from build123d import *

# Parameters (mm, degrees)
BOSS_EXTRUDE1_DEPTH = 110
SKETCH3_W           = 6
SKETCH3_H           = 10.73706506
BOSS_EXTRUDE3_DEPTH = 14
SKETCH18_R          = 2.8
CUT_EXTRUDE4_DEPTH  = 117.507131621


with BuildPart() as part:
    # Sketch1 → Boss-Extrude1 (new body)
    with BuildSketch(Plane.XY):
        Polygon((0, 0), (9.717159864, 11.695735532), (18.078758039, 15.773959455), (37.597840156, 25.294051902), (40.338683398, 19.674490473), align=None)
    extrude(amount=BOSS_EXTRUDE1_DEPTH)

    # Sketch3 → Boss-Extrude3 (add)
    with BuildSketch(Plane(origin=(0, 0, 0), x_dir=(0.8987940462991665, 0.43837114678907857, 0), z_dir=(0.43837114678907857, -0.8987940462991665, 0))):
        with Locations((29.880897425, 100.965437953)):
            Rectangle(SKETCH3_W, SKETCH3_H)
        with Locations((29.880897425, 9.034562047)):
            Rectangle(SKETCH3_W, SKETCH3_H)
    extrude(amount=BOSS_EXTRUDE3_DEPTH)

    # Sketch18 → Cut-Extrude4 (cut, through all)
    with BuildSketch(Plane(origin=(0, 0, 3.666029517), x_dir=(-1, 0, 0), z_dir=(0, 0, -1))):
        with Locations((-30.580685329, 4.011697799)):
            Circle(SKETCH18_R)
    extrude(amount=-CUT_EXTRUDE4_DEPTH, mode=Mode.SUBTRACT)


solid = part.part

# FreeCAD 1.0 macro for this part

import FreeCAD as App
import Part
import Sketcher

V = App.Vector
Q = App.Units.Quantity


def add_polygon(sketch, points):
    """Adds a closed chain of lines whose ends are joined by coincident constraints."""
    first, n = sketch.GeometryCount, len(points)
    for a, b in zip(points, points[1:] + points[:1]):
        sketch.addGeometry(Part.LineSegment(App.Vector(*a, 0), App.Vector(*b, 0)), False)
    for i in range(n):
        sketch.addConstraint(Sketcher.Constraint("Coincident", first + i, 2, first + (i + 1) % n, 1))

doc = App.newDocument("Part")
body = doc.addObject("PartDesign::Body", "Body")

# Sketch on XY plane
sketch1 = body.newObject("Sketcher::SketchObject", "Sketch")
sketch1.AttachmentSupport = (doc.getObject("XY_Plane"), [""])
sketch1.MapMode = "FlatFace"
add_polygon(sketch1, [(10, 12), (0, 0), (40, 20), (38, 25), (18, 16)])  # lines 0-4
sketch1.addConstraint([
    Sketcher.Constraint("Coincident", 0, 2, -1, 1),
    Sketcher.Constraint("Perpendicular", 1, 2),
    Sketcher.Constraint("Perpendicular", 2, 3),
    Sketcher.Constraint("Parallel", 3, 4),
    Sketcher.Constraint("Angle", 1, Q("26 deg")),
    Sketcher.Constraint("DistanceX", 4, 2, 3, 2, Q("8.361598 mm")),
    Sketcher.Constraint("Distance", 3, Q("21.716969 mm")),
    Sketcher.Constraint("DistanceY", -1, 1, 1, 2, Q("19.67449 mm")),
    Sketcher.Constraint("DistanceX", -1, 1, 2, 2, Q("37.59784 mm")),
])
pad1 = body.newObject("PartDesign::Pad", "Pad")
pad1.Profile = sketch1
pad1.Length = 110

# Sketch on an angled plane
sketch2 = body.newObject("Sketcher::SketchObject", "Sketch001")
sketch2.Placement = App.Placement(V(0, 0, 0), App.Rotation(V(0.898794046, 0.438371147, 0), V(0, 0, 1), V(0.438371147, -0.898794046, 0), "ZXY"))
add_polygon(sketch2, [(27, 106), (27, 96), (33, 96), (33, 106)])  # lines 0-3
add_polygon(sketch2, [(27, 14), (27, 4), (33, 4), (33, 14)])  # lines 4-7
sketch2.addConstraint([
    Sketcher.Constraint("Vertical", 0),
    Sketcher.Constraint("Horizontal", 1),
    Sketcher.Constraint("Vertical", 2),
    Sketcher.Constraint("Horizontal", 3),
    Sketcher.Constraint("Vertical", 4),
    Sketcher.Constraint("Horizontal", 5),
    Sketcher.Constraint("Vertical", 6),
    Sketcher.Constraint("Horizontal", 7),
    Sketcher.Constraint("Vertical", 3, 2, 4, 2),
    Sketcher.Constraint("Vertical", 2, 2, 5, 2),
    Sketcher.Constraint("Equal", 2, 4),
    Sketcher.Constraint("DistanceX", 1, 1, 1, 2, Q("6 mm")),
    Sketcher.Constraint("DistanceY", 0, 2, 0, 1, Q("10.737065 mm")),
    Sketcher.Constraint("DistanceY", -1, 1, 2, 2, Q("106.33397 mm")),
    Sketcher.Constraint("DistanceY", -1, 1, 4, 2, Q("3.66603 mm")),
    Sketcher.Constraint("DistanceX", -1, 1, 0, 2, Q("26.880897 mm")),
])
pad2 = body.newObject("PartDesign::Pad", "Pad001")
pad2.Profile = sketch2
pad2.Length = 14

# Sketch on XY plane
sketch3 = body.newObject("Sketcher::SketchObject", "Sketch002")
sketch3.AttachmentSupport = (doc.getObject("XY_Plane"), [""])
sketch3.MapMode = "FlatFace"
sketch3.AttachmentOffset = App.Placement(V(0, 0, 3.66603), App.Rotation())
sketch3.addGeometry(Part.Circle(V(30.6, 4, 0), V(0, 0, 1), 2.8), False)
sketch3.addConstraint([
    Sketcher.Constraint("Diameter", 0, Q("5.6 mm")),
    Sketcher.Constraint("DistanceX", -1, 1, 0, 3, Q("30.580685 mm")),
    Sketcher.Constraint("DistanceY", -1, 1, 0, 3, Q("4.011698 mm")),
])
pocket1 = body.newObject("PartDesign::Pocket", "Pocket")
pocket1.Profile = sketch3
pocket1.Type = "ThroughAll"
pocket1.Reversed = True

doc.recompute()
